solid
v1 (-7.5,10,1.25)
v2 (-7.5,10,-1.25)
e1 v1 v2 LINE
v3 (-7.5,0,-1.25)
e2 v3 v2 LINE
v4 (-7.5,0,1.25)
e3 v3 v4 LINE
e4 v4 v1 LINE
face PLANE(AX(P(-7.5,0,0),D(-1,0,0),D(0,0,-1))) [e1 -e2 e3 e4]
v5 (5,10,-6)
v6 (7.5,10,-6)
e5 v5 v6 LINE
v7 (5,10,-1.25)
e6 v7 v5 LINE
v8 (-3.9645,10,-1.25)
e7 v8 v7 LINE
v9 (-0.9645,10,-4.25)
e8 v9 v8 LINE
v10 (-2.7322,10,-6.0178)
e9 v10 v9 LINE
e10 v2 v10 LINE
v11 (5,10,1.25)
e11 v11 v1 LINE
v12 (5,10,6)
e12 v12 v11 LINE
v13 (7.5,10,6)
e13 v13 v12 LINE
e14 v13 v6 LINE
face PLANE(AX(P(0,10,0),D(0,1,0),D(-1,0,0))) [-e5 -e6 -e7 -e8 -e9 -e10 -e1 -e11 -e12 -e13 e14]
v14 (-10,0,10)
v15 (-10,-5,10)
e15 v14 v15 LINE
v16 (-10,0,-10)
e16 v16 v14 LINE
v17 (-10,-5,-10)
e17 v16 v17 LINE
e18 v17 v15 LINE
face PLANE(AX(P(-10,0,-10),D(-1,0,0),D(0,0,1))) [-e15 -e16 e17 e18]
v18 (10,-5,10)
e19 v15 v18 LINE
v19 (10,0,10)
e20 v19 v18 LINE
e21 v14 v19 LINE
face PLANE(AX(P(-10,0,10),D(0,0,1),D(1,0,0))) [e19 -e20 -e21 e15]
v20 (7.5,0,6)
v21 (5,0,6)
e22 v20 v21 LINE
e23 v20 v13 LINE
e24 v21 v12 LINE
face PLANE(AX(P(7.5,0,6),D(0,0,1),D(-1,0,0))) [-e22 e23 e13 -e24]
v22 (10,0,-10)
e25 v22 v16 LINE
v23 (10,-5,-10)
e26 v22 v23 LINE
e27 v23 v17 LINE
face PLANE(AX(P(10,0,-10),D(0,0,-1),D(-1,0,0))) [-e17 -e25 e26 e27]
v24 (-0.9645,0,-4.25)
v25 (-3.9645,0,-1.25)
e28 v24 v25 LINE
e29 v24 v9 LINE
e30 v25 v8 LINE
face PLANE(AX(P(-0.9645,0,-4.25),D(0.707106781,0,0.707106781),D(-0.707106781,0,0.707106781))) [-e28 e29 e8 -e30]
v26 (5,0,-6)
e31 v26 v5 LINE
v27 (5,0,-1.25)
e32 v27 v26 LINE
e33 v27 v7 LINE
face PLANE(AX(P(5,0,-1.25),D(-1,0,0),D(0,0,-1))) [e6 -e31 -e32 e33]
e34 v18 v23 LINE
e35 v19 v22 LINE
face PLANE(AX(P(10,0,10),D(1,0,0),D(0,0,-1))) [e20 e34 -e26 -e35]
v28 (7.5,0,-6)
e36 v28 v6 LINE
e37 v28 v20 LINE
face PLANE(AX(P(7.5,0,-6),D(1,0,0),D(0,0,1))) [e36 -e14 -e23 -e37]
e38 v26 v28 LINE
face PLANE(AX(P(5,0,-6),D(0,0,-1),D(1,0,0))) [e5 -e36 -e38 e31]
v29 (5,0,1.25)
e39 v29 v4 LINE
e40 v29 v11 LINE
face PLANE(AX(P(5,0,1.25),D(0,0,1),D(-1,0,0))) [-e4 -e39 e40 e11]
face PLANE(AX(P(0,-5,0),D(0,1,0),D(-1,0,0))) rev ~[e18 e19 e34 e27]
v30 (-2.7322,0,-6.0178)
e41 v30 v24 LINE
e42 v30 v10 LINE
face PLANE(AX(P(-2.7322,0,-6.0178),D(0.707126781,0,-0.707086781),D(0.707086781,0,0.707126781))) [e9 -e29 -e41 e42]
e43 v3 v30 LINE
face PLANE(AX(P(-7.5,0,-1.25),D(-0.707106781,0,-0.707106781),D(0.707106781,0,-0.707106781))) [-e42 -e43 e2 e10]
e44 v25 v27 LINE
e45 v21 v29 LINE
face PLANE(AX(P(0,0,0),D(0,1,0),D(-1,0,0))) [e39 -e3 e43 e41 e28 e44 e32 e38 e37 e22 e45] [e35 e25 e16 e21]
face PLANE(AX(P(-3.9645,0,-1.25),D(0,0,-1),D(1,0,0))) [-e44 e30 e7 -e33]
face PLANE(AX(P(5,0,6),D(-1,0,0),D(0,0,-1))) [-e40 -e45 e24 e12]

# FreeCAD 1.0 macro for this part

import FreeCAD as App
import Part
import Sketcher
from FreeCAD import Vector
Q = App.Units.Quantity


def add_polygon(sketch, points):
    """Adds a closed chain of lines whose ends are joined by coincident constraints."""
    first, n = sketch.GeometryCount, len(points)
    for a, b in zip(points, points[1:] + points[:1]):
        sketch.addGeometry(Part.LineSegment(App.Vector(*a, 0), App.Vector(*b, 0)), False)
    for i in range(n):
        sketch.addConstraint(Sketcher.Constraint("Coincident", first + i, 2, first + (i + 1) % n, 1))

doc = App.newDocument("Part")
body = doc.addObject("PartDesign::Body", "Body")

sketch1 = doc.addObject("Sketcher::SketchObject", "Sketch")
body.addObject(sketch1)
sketch1.AttachmentSupport = (doc.XZ_Plane, [""])
sketch1.MapMode = "FlatFace"
add_polygon(sketch1, [(10, 10), (10, -10), (-10, -10), (-10, 10)])
sketch1.addConstraint([
    Sketcher.Constraint("Vertical", 0),
    Sketcher.Constraint("Horizontal", 1),
    Sketcher.Constraint("Vertical", 2),
    Sketcher.Constraint("Horizontal", 3),
    Sketcher.Constraint("Symmetric", 0, 2, 2, 2, -1, 1),
    Sketcher.Constraint("Equal", 3, 0),
    Sketcher.Constraint("DistanceX", 1, 2, 1, 1, 20.0),
])
pad1 = doc.addObject("PartDesign::Pad", "Pad")
body.addObject(pad1)
pad1.Profile = sketch1
pad1.Length = 5

sketch2 = doc.addObject("Sketcher::SketchObject", "Sketch001")
body.addObject(sketch2)
sketch2.AttachmentSupport = (doc.XZ_Plane, [""])
sketch2.MapMode = "FlatFace"
add_polygon(sketch2, [(-7.5, -1.2), (-7.5, 1.2), (5, 1.2), (5, 6), (7.5, 6), (7.5, -6), (5, -6), (5, -1.2), (-4, -1.2), (-1, -4.2), (-2.7, -6)])
sketch2.addConstraint([
    Sketcher.Constraint("Vertical", 0),
    Sketcher.Constraint("Horizontal", 1),
    Sketcher.Constraint("Vertical", 2),
    Sketcher.Constraint("Horizontal", 3),
    Sketcher.Constraint("Vertical", 4),
    Sketcher.Constraint("Horizontal", 5),
    Sketcher.Constraint("Vertical", 6),
    Sketcher.Constraint("Horizontal", 7),
    Sketcher.Constraint("Symmetric", 2, 2, 5, 2, -1),
    Sketcher.Constraint("Perpendicular", 8, 9),
    Sketcher.Constraint("Perpendicular", 9, 10),
    Sketcher.Constraint("Horizontal", 7, 2, 10, 2),
    Sketcher.Constraint("Equal", 5, 0),
    Sketcher.Constraint("Equal", 2, 6),
    Sketcher.Constraint("DistanceY", 4, 2, 4, 1, 12.0),
    Sketcher.Constraint("Angle", 8, Q("-45 deg")),
    Sketcher.Constraint("DistanceX", 3, 1, 3, 2, 2.5),
    Sketcher.Constraint("DistanceX", 7, 2, 8, 2, 3.0),
    Sketcher.Constraint("Distance", 9, 2.5),
    Sketcher.Constraint("DistanceX", 1, 1, 1, 2, 12.5),
    Sketcher.Constraint("DistanceX", -1, 1, 1, 2, 5.0),
])
pad2 = doc.addObject("PartDesign::Pad", "Pad001")
body.addObject(pad2)
pad2.Profile = sketch2
pad2.Length = 10
pad2.Reversed = True

doc.recompute()
